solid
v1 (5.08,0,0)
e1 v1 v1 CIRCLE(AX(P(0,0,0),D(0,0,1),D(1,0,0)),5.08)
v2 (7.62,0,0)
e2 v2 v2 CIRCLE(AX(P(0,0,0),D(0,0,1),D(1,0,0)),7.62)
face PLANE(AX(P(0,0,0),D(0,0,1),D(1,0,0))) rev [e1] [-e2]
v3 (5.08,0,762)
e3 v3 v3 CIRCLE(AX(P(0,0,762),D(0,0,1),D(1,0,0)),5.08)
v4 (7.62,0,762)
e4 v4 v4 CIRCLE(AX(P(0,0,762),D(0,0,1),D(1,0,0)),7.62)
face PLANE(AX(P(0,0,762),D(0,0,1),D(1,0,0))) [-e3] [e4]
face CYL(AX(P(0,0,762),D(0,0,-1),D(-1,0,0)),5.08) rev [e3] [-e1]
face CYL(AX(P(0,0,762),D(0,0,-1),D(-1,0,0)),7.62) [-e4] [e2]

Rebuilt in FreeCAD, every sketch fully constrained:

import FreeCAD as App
import Part
import Sketcher
from FreeCAD import Vector
Q = App.Units.Quantity

doc = App.newDocument("Part")
body = doc.addObject("PartDesign::Body", "Body")

sketch1 = body.newObject("Sketcher::SketchObject", "Sketch")
sketch1.AttachmentSupport = (doc.getObject("XY_Plane"), [""])
sketch1.MapMode = "FlatFace"
sketch1.addGeometry(Part.Circle(Vector(0, 0, 0), Vector(0, 0, 1), 7.62), False)
sketch1.addGeometry(Part.Circle(Vector(0, 0, 0), Vector(0, 0, 1), 5.08), False)
sketch1.addConstraint(Sketcher.Constraint("Coincident", 0, 3, -1, 1))
sketch1.addConstraint(Sketcher.Constraint("Coincident", 1, 3, -1, 1))
sketch1.addConstraint(Sketcher.Constraint("Diameter", 0, Q("0.6 in")))
sketch1.addConstraint(Sketcher.Constraint("Diameter", 1, Q("0.4 in")))
pad1 = body.newObject("PartDesign::Pad", "Pad")
pad1.Profile = sketch1
pad1.Length = Q("30 in")

doc.recompute()
